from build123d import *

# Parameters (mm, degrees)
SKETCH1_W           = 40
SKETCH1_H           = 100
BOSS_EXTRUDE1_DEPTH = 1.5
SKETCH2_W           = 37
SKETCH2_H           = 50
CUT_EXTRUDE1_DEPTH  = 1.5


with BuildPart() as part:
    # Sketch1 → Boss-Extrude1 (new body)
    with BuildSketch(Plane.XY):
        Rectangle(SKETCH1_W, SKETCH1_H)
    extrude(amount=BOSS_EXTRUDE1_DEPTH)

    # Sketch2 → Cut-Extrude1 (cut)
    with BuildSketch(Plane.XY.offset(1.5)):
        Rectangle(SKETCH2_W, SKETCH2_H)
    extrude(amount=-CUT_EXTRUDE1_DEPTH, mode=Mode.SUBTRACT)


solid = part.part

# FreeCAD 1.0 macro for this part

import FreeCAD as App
import Part
import Sketcher

doc = App.newDocument("Part")
body = doc.addObject("PartDesign::Body", "Body")

# Sketch on XY plane
sketch1 = body.newObject("Sketcher::SketchObject", "Sketch")
sketch1.AttachmentSupport = (doc.getObject("XY_Plane"), [""])
sketch1.MapMode = "FlatFace"
sketch1.addGeometry([
    Part.LineSegment(App.Vector(-20, 50, 0), App.Vector(-20, -50, 0)),
    Part.LineSegment(App.Vector(-20, -50, 0), App.Vector(20, -50, 0)),
    Part.LineSegment(App.Vector(20, -50, 0), App.Vector(20, 50, 0)),
    Part.LineSegment(App.Vector(20, 50, 0), App.Vector(-20, 50, 0)),
], False)
sketch1.addConstraint([
    Sketcher.Constraint("Coincident", 0, 2, 1, 1),
    Sketcher.Constraint("Coincident", 1, 2, 2, 1),
    Sketcher.Constraint("Coincident", 2, 2, 3, 1),
    Sketcher.Constraint("Coincident", 3, 2, 0, 1),
    Sketcher.Constraint("Vertical", 0),
    Sketcher.Constraint("Horizontal", 1),
    Sketcher.Constraint("Vertical", 2),
    Sketcher.Constraint("Horizontal", 3),
    Sketcher.Constraint("Symmetric", 0, 2, 2, 2, -1, 1),
    Sketcher.Constraint("DistanceX", 1, 1, 1, 2, 40.0),
    Sketcher.Constraint("DistanceY", 0, 2, 0, 1, 100.0),
])
pad1 = body.newObject("PartDesign::Pad", "Pad")
pad1.Profile = sketch1
pad1.Length = 1.5

# Sketch on XY plane
sketch2 = body.newObject("Sketcher::SketchObject", "Sketch001")
sketch2.AttachmentSupport = (doc.getObject("XY_Plane"), [""])
sketch2.MapMode = "FlatFace"
sketch2.AttachmentOffset = App.Placement(App.Vector(0, 0, 1.5), App.Rotation())
sketch2.addGeometry([
    Part.LineSegment(App.Vector(-18, 25, 0), App.Vector(-18, -25, 0)),
    Part.LineSegment(App.Vector(-18, -25, 0), App.Vector(18, -25, 0)),
    Part.LineSegment(App.Vector(18, -25, 0), App.Vector(18, 25, 0)),
    Part.LineSegment(App.Vector(18, 25, 0), App.Vector(-18, 25, 0)),
], False)
sketch2.addConstraint([
    Sketcher.Constraint("Coincident", 0, 2, 1, 1),
    Sketcher.Constraint("Coincident", 1, 2, 2, 1),
    Sketcher.Constraint("Coincident", 2, 2, 3, 1),
    Sketcher.Constraint("Coincident", 3, 2, 0, 1),
    Sketcher.Constraint("Vertical", 0),
    Sketcher.Constraint("Horizontal", 1),
    Sketcher.Constraint("Vertical", 2),
    Sketcher.Constraint("Horizontal", 3),
    Sketcher.Constraint("Symmetric", 0, 2, 2, 2, -1, 1),
    Sketcher.Constraint("DistanceX", 1, 1, 1, 2, 37.0),
    Sketcher.Constraint("DistanceY", 0, 2, 0, 1, 50.0),
])
pocket1 = body.newObject("PartDesign::Pocket", "Pocket")
pocket1.Profile = sketch2
pocket1.Length = 1.5

doc.recompute()
